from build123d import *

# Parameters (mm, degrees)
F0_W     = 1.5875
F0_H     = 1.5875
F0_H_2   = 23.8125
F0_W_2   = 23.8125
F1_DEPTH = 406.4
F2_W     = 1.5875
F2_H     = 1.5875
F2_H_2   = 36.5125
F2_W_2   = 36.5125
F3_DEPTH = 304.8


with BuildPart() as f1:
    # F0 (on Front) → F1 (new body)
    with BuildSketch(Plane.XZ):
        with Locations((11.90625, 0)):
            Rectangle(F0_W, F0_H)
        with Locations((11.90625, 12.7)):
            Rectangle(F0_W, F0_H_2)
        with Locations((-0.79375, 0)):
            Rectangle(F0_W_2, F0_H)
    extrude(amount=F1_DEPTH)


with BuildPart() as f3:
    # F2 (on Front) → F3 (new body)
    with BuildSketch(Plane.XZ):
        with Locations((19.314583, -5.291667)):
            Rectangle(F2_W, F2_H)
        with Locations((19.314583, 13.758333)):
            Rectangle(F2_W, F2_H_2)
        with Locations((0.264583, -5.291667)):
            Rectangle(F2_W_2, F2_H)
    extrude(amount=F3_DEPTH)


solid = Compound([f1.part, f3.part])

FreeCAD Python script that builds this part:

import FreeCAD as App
import Part
import Sketcher
Q = App.Units.Quantity


def add_polygon(sketch, points):
    """Adds a closed chain of lines whose ends are joined by coincident constraints."""
    first, n = sketch.GeometryCount, len(points)
    for a, b in zip(points, points[1:] + points[:1]):
        sketch.addGeometry(Part.LineSegment(App.Vector(*a, 0), App.Vector(*b, 0)), False)
    for i in range(n):
        sketch.addConstraint(Sketcher.Constraint("Coincident", first + i, 2, first + (i + 1) % n, 1))

doc = App.newDocument("Part")
body = doc.addObject("PartDesign::Body", "Body")

sketch1 = body.newObject("Sketcher::SketchObject", "Sketch")
sketch1.AttachmentSupport = (doc.getObject("XZ_Plane"), [""])
sketch1.MapMode = "FlatFace"
add_polygon(sketch1, [(12.7, -0.79375), (12.7, 24.60625), (11.1125, 24.60625), (11.1125, 0.79375), (-12.7, 0.79375), (-12.7, -0.79375)])
sketch1.addConstraint([
    Sketcher.Constraint("Vertical", 0),
    Sketcher.Constraint("Horizontal", 1),
    Sketcher.Constraint("Vertical", 2),
    Sketcher.Constraint("Horizontal", 3),
    Sketcher.Constraint("Vertical", 4),
    Sketcher.Constraint("Horizontal", 5),
    Sketcher.Constraint("Symmetric", 3, 2, 5, 2, -1, 1),
    Sketcher.Constraint("Equal", 5, 0),
    Sketcher.Constraint("Equal", 3, 2),
    Sketcher.Constraint("DistanceX", 5, 1, 5, 2, Q("1 in")),
    Sketcher.Constraint("DistanceX", 1, 2, 1, 1, Q("0.0625 in")),
])
pad1 = body.newObject("PartDesign::Pad", "Pad")
pad1.Profile = sketch1
pad1.Length = Q("16 in")
body2 = doc.addObject("PartDesign::Body", "Body001")

sketch2 = body2.newObject("Sketcher::SketchObject", "Sketch001")
sketch2.AttachmentSupport = (doc.getObject("XZ_Plane001"), [""])
sketch2.MapMode = "FlatFace"
add_polygon(sketch2, [(20.108333, -6.085417), (20.108333, 32.014583), (18.520833, 32.014583), (18.520833, -4.497917), (-17.991667, -4.497917), (-17.991667, -6.085417)])
sketch2.addConstraint([
    Sketcher.Constraint("Vertical", 0),
    Sketcher.Constraint("Horizontal", 1),
    Sketcher.Constraint("Vertical", 2),
    Sketcher.Constraint("Horizontal", 3),
    Sketcher.Constraint("Vertical", 4),
    Sketcher.Constraint("Horizontal", 5),
    Sketcher.Constraint("Equal", 5, 0),
    Sketcher.Constraint("Equal", 3, 2),
    Sketcher.Constraint("DistanceX", 5, 1, 5, 2, Q("1.5 in")),
    Sketcher.Constraint("DistanceX", 1, 2, 1, 1, Q("0.0625 in")),
    Sketcher.Constraint("DistanceX", -1, 1, 0, 2, 20.108333),
    Sketcher.Constraint("DistanceY", -1, 1, 0, 2, 32.014583),
])
pad2 = body2.newObject("PartDesign::Pad", "Pad001")
pad2.Profile = sketch2
pad2.Length = Q("12 in")

doc.recompute()
